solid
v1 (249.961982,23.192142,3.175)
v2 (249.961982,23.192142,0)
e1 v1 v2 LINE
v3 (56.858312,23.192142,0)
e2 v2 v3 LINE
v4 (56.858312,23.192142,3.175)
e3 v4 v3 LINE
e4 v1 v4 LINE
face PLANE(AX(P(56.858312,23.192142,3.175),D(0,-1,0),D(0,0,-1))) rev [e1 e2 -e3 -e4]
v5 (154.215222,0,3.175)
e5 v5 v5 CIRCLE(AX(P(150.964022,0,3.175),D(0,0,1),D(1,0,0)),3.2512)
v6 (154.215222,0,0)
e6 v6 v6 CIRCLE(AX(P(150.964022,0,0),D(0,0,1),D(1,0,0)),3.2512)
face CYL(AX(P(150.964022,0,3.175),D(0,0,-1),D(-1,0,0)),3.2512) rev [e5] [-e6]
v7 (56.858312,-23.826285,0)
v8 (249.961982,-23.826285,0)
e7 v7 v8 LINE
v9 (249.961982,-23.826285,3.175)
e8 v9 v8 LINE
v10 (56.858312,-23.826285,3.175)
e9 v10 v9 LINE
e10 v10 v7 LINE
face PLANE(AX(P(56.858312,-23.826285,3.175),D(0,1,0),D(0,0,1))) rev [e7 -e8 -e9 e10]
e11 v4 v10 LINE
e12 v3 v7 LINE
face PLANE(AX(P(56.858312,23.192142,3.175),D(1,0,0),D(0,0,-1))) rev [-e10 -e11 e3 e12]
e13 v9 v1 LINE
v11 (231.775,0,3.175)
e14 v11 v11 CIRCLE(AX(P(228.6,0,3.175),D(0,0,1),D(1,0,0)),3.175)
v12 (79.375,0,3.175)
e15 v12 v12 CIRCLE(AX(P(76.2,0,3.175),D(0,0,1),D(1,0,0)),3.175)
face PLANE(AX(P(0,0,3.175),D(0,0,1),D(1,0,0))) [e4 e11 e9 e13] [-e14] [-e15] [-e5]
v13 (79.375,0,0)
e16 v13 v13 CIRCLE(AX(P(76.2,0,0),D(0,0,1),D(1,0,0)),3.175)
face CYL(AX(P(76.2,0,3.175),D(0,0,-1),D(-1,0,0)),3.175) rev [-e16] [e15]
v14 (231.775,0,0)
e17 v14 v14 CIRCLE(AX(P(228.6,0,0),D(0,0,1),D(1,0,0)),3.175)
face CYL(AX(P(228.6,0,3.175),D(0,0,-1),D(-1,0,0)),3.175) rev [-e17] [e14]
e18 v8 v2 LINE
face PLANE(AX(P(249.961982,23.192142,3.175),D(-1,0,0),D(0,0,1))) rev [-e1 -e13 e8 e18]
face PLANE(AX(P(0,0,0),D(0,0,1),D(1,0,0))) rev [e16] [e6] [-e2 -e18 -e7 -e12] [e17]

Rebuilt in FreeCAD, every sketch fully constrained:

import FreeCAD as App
import Part
import Sketcher
Q = App.Units.Quantity


def add_polygon(sketch, points):
    """Adds a closed chain of lines whose ends are joined by coincident constraints."""
    first, n = sketch.GeometryCount, len(points)
    for a, b in zip(points, points[1:] + points[:1]):
        sketch.addGeometry(Part.LineSegment(App.Vector(*a, 0), App.Vector(*b, 0)), False)
    for i in range(n):
        sketch.addConstraint(Sketcher.Constraint("Coincident", first + i, 2, first + (i + 1) % n, 1))

doc = App.newDocument("Part")
body = doc.addObject("PartDesign::Body", "Body")

# Sketch on XY plane
sketch1 = body.newObject("Sketcher::SketchObject", "Sketch")
sketch1.AttachmentSupport = (doc.getObject("XY_Plane"), [""])
sketch1.MapMode = "FlatFace"
add_polygon(sketch1, [(56.9, 23.2), (56.9, -23.8), (250, -23.8), (250, 23.2)])  # lines 0-3
sketch1.addGeometry(Part.Circle(App.Vector(76.2, 0, 0), App.Vector(0, 0, 1), 3.2), False)  # 4
sketch1.addGeometry(Part.Circle(App.Vector(151, 0, 0), App.Vector(0, 0, 1), 3.3), False)  # 5
sketch1.addGeometry(Part.Circle(App.Vector(228.6, 0, 0), App.Vector(0, 0, 1), 3.2), False)  # 6
sketch1.addConstraint([
    Sketcher.Constraint("Vertical", 0),
    Sketcher.Constraint("Horizontal", 1),
    Sketcher.Constraint("Vertical", 2),
    Sketcher.Constraint("Horizontal", 3),
    Sketcher.Constraint("Equal", 4, 6),
    Sketcher.Constraint("PointOnObject", 4, 3, -1),
    Sketcher.Constraint("PointOnObject", 5, 3, -1),
    Sketcher.Constraint("PointOnObject", 6, 3, -1),
    Sketcher.Constraint("Diameter", 4, Q("0.25 in")),
    Sketcher.Constraint("Diameter", 5, Q("0.256 in")),
    Sketcher.Constraint("DistanceX", -1, 1, 4, 3, Q("3 in")),
    Sketcher.Constraint("DistanceX", -1, 1, 6, 3, Q("9 in")),
    Sketcher.Constraint("DistanceX", 1, 1, 1, 2, Q("193.10367 mm")),
    Sketcher.Constraint("DistanceY", 0, 2, 0, 1, Q("47.018427 mm")),
    Sketcher.Constraint("DistanceX", -1, 1, 0, 2, Q("56.858312 mm")),
    Sketcher.Constraint("DistanceX", 0, 2, 5, 3, Q("94.10571 mm")),
    Sketcher.Constraint("DistanceY", 0, 2, -1, 1, Q("23.826285 mm")),
])
pad1 = body.newObject("PartDesign::Pad", "Pad")
pad1.Profile = sketch1
pad1.Length = Q("0.125 in")

doc.recompute()
